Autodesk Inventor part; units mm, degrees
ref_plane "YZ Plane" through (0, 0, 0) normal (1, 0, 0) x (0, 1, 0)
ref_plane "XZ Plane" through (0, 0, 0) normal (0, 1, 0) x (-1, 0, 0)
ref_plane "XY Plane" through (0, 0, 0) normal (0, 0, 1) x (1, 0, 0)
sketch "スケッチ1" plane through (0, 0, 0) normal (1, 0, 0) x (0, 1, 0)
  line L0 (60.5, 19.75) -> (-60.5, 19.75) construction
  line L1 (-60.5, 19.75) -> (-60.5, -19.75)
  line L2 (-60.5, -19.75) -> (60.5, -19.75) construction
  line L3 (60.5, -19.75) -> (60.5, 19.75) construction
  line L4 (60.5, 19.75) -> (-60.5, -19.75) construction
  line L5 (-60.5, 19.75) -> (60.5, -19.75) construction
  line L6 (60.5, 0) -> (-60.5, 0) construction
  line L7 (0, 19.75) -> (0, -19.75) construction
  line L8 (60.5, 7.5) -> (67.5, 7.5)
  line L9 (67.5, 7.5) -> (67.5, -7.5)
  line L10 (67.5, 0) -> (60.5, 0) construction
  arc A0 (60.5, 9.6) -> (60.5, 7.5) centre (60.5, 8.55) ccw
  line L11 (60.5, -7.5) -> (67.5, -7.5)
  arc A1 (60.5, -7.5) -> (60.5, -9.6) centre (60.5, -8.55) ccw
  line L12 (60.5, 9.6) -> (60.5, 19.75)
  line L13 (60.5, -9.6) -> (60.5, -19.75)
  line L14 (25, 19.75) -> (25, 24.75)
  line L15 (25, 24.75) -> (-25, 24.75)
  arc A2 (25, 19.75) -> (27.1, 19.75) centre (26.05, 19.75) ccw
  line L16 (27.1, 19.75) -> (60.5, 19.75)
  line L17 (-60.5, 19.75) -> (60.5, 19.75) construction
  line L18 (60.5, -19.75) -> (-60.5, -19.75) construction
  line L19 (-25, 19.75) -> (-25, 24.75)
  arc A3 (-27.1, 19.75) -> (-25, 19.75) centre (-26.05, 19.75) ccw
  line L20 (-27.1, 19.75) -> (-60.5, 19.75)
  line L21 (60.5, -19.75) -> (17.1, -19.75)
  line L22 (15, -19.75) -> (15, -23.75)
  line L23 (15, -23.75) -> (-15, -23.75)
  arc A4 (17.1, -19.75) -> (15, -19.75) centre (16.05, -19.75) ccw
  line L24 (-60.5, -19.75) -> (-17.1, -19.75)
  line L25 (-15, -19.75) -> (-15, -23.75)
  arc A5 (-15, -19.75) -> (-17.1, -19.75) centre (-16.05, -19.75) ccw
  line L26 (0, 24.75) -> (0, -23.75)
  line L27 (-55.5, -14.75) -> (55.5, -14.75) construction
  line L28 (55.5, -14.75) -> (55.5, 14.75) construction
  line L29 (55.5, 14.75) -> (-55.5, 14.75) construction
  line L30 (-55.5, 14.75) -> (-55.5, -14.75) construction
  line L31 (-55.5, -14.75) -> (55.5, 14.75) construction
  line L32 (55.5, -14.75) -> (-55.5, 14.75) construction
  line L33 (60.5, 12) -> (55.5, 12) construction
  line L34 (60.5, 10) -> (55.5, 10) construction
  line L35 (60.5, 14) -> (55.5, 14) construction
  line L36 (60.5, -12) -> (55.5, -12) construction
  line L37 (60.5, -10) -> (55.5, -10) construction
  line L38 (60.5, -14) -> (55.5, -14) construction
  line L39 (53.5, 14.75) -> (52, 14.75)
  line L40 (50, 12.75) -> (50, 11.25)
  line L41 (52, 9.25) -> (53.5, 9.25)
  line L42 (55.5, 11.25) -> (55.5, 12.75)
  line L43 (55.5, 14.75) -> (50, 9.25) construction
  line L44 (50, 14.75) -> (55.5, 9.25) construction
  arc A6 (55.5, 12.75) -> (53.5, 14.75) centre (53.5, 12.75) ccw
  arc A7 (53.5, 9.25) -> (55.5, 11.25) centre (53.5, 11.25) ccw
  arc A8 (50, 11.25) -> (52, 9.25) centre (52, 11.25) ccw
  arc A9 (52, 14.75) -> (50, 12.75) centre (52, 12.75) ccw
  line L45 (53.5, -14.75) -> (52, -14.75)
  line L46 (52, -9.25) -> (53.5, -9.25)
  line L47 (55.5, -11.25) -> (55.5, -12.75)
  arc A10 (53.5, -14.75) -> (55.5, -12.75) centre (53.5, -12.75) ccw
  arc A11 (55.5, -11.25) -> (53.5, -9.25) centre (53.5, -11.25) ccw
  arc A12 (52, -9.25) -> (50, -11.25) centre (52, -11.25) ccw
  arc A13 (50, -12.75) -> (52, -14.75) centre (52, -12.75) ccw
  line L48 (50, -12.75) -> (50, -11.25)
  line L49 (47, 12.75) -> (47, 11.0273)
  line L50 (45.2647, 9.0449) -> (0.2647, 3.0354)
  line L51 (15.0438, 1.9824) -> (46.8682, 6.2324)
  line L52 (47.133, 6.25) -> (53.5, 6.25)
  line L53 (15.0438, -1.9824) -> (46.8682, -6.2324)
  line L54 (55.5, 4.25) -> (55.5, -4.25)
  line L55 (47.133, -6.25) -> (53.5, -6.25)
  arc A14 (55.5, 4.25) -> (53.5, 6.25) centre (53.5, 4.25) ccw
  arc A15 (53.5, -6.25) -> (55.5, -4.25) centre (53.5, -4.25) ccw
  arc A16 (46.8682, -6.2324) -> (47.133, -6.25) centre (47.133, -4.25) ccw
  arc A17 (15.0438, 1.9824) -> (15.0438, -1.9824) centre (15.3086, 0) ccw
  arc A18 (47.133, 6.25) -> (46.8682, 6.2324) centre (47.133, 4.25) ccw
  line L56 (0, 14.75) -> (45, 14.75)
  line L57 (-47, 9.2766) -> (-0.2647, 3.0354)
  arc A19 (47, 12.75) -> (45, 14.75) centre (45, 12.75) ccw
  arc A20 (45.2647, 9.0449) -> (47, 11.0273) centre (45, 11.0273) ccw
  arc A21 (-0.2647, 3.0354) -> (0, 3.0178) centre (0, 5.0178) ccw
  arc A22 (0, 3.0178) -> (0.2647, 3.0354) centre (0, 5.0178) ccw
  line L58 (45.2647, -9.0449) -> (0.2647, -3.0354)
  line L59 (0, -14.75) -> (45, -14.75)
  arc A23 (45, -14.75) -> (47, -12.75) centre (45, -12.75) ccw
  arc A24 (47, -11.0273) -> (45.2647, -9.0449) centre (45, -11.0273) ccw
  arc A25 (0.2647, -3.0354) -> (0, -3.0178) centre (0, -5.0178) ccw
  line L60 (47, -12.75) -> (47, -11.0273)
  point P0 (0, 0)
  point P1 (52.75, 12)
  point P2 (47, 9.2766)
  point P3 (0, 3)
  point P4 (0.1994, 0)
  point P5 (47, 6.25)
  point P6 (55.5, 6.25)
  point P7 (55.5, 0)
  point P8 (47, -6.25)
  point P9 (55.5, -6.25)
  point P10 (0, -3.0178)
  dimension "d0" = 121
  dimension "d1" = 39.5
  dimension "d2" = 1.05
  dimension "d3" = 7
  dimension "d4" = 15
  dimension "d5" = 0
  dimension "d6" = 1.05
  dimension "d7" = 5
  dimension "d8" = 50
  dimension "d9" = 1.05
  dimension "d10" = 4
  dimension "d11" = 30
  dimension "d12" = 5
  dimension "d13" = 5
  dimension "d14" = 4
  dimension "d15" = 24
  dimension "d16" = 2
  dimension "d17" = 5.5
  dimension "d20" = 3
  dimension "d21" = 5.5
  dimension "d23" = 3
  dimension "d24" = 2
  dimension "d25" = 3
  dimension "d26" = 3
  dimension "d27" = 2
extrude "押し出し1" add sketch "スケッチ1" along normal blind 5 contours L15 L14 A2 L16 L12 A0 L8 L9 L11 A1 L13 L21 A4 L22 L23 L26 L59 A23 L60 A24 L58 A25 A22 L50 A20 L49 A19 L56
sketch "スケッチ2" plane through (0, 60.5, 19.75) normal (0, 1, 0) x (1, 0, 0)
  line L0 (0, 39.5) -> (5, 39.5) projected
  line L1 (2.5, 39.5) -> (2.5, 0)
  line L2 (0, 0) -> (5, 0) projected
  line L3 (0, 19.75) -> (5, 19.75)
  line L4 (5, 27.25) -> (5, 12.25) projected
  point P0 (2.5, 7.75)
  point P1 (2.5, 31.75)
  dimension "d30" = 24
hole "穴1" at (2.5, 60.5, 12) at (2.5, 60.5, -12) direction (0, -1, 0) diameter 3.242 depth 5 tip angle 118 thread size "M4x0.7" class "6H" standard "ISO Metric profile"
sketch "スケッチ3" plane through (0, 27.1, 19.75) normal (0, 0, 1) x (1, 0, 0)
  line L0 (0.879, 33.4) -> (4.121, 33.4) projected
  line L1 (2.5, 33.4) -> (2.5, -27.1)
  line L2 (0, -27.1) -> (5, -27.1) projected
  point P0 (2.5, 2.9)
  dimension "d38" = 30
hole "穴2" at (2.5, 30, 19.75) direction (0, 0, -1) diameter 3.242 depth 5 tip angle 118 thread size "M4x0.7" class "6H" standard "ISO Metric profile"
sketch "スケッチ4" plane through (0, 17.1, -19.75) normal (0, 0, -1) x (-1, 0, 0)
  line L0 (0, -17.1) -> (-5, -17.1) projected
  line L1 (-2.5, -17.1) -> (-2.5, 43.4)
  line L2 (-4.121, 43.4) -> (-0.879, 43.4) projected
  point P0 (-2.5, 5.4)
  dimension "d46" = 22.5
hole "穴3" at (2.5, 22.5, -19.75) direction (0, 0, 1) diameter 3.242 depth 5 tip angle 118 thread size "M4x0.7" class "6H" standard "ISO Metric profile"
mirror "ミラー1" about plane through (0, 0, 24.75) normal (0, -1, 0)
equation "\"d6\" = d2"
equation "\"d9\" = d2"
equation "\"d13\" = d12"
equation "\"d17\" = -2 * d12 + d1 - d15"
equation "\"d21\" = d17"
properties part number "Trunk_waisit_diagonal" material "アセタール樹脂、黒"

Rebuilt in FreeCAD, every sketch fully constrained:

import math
import FreeCAD as App
import Part
import Sketcher
from FreeCAD import Vector
Q = App.Units.Quantity

doc = App.newDocument("Part")
body = doc.addObject("PartDesign::Body", "Body")

# Sketch on YZ plane
sketch1 = doc.addObject("Sketcher::SketchObject", "Sketch")
body.addObject(sketch1)
sketch1.AttachmentSupport = (doc.YZ_Plane, [""])
sketch1.MapMode = "FlatFace"
sketch1.addGeometry([
    Part.LineSegment(Vector(25, 24.75, 0), Vector(0, 24.75, 0)),  # 0
    Part.LineSegment(Vector(0, 24.75, 0), Vector(0, 14.75, 0)),  # 1
    Part.LineSegment(Vector(0, 14.75, 0), Vector(45, 14.75, 0)),  # 2
    Part.ArcOfCircle(Part.Circle(Vector(45, 12.75, 0), Vector(0, 0, 1), 2), math.radians(0), math.radians(90)),  # 3
    Part.LineSegment(Vector(47, 12.75, 0), Vector(47, 11.0273, 0)),  # 4
    Part.ArcOfCircle(Part.Circle(Vector(45, 11.0273, 0), Vector(0, 0, 1), 1.999994), math.radians(-82.394566), math.radians(0)),  # 5
    Part.LineSegment(Vector(45.2647, 9.0449, 0), Vector(0.2647, 3.0354, 0)),  # 6
    Part.ArcOfCircle(Part.Circle(Vector(0.000045, 5.01643, 0), Vector(0, 0, 1), 1.99863), math.radians(-90.001304), math.radians(-82.39066)),  # 7
    Part.LineSegment(Vector(0, 3.0178, 0), Vector(0, -3.0178, 0)),  # 8
    Part.ArcOfCircle(Part.Circle(Vector(-0.000136, -5.019166, 0), Vector(0, 0, 1), 2.001366), math.radians(82.39587), math.radians(89.996094)),  # 9
    Part.LineSegment(Vector(0.2647, -3.0354, 0), Vector(45.2647, -9.0449, 0)),  # 10
    Part.ArcOfCircle(Part.Circle(Vector(45, -11.0273, 0), Vector(0, 0, 1), 2), math.radians(0), math.radians(82.394566)),  # 11
    Part.LineSegment(Vector(47, -11.0273, 0), Vector(47, -12.75, 0)),  # 12
    Part.ArcOfCircle(Part.Circle(Vector(45, -12.75, 0), Vector(0, 0, 1), 2), math.radians(-90), math.radians(0)),  # 13
    Part.LineSegment(Vector(45, -14.75, 0), Vector(0, -14.75, 0)),  # 14
    Part.LineSegment(Vector(0, -14.75, 0), Vector(0, -23.75, 0)),  # 15
    Part.LineSegment(Vector(0, -23.75, 0), Vector(15, -23.75, 0)),  # 16
    Part.LineSegment(Vector(15, -23.75, 0), Vector(15, -19.75, 0)),  # 17
    Part.ArcOfCircle(Part.Circle(Vector(16.05, -19.75, 0), Vector(0, 0, 1), 1.05), math.radians(0), math.radians(180)),  # 18
    Part.LineSegment(Vector(17.1, -19.75, 0), Vector(60.5, -19.75, 0)),  # 19
    Part.LineSegment(Vector(60.5, -19.75, 0), Vector(60.5, -9.6, 0)),  # 20
    Part.ArcOfCircle(Part.Circle(Vector(60.5, -8.55, 0), Vector(0, 0, 1), 1.05), math.radians(90), math.radians(270)),  # 21
    Part.LineSegment(Vector(60.5, -7.5, 0), Vector(67.5, -7.5, 0)),  # 22
    Part.LineSegment(Vector(67.5, -7.5, 0), Vector(67.5, 7.5, 0)),  # 23
    Part.LineSegment(Vector(67.5, 7.5, 0), Vector(60.5, 7.5, 0)),  # 24
    Part.ArcOfCircle(Part.Circle(Vector(60.5, 8.55, 0), Vector(0, 0, 1), 1.05), math.radians(90), math.radians(270)),  # 25
    Part.LineSegment(Vector(60.5, 9.6, 0), Vector(60.5, 19.75, 0)),  # 26
    Part.LineSegment(Vector(60.5, 19.75, 0), Vector(27.1, 19.75, 0)),  # 27
    Part.ArcOfCircle(Part.Circle(Vector(26.05, 19.75, 0), Vector(0, 0, 1), 1.05), math.radians(180), math.radians(360)),  # 28
    Part.LineSegment(Vector(25, 19.75, 0), Vector(25, 24.75, 0)),  # 29
    Part.ArcOfCircle(Part.Circle(Vector(53.5, -12.75, 0), Vector(0, 0, 1), 2), math.radians(-90), math.radians(0)),  # 30
    Part.LineSegment(Vector(53.5, -14.75, 0), Vector(52, -14.75, 0)),  # 31
    Part.ArcOfCircle(Part.Circle(Vector(52, -12.75, 0), Vector(0, 0, 1), 2), math.radians(180), math.radians(270)),  # 32
    Part.LineSegment(Vector(50, -12.75, 0), Vector(50, -11.25, 0)),  # 33
    Part.ArcOfCircle(Part.Circle(Vector(52, -11.25, 0), Vector(0, 0, 1), 2), math.radians(90), math.radians(180)),  # 34
    Part.LineSegment(Vector(52, -9.25, 0), Vector(53.5, -9.25, 0)),  # 35
    Part.ArcOfCircle(Part.Circle(Vector(53.5, -11.25, 0), Vector(0, 0, 1), 2), math.radians(0), math.radians(90)),  # 36
    Part.LineSegment(Vector(55.5, -11.25, 0), Vector(55.5, -12.75, 0)),  # 37
    Part.ArcOfCircle(Part.Circle(Vector(15.3086, 0, 0), Vector(0, 0, 1), 2.000007), math.radians(97.608274), math.radians(262.391726)),  # 38
    Part.LineSegment(Vector(15.0438, 1.9824, 0), Vector(46.8682, 6.2324, 0)),  # 39
    Part.ArcOfCircle(Part.Circle(Vector(47.133054, 4.248365, 0), Vector(0, 0, 1), 2.001635), math.radians(90.001554), math.radians(97.603617)),  # 40
    Part.LineSegment(Vector(47.133, 6.25, 0), Vector(53.5, 6.25, 0)),  # 41
    Part.ArcOfCircle(Part.Circle(Vector(53.5, 4.25, 0), Vector(0, 0, 1), 2), math.radians(0), math.radians(90)),  # 42
    Part.LineSegment(Vector(55.5, 4.25, 0), Vector(55.5, -4.25, 0)),  # 43
    Part.ArcOfCircle(Part.Circle(Vector(53.5, -4.25, 0), Vector(0, 0, 1), 2), math.radians(-90), math.radians(0)),  # 44
    Part.LineSegment(Vector(53.5, -6.25, 0), Vector(47.133, -6.25, 0)),  # 45
    Part.ArcOfCircle(Part.Circle(Vector(47.132838, -4.251625, 0), Vector(0, 0, 1), 1.998375), math.radians(-97.609828), math.radians(-89.995343)),  # 46
    Part.LineSegment(Vector(46.8682, -6.2324, 0), Vector(15.0438, -1.9824, 0)),  # 47
    Part.LineSegment(Vector(52, 14.75, 0), Vector(53.5, 14.75, 0)),  # 48
    Part.ArcOfCircle(Part.Circle(Vector(53.5, 12.75, 0), Vector(0, 0, 1), 2), math.radians(0), math.radians(90)),  # 49
    Part.LineSegment(Vector(55.5, 12.75, 0), Vector(55.5, 11.25, 0)),  # 50
    Part.ArcOfCircle(Part.Circle(Vector(53.5, 11.25, 0), Vector(0, 0, 1), 2), math.radians(-90), math.radians(0)),  # 51
    Part.LineSegment(Vector(53.5, 9.25, 0), Vector(52, 9.25, 0)),  # 52
    Part.ArcOfCircle(Part.Circle(Vector(52, 11.25, 0), Vector(0, 0, 1), 2), math.radians(180), math.radians(270)),  # 53
    Part.LineSegment(Vector(50, 11.25, 0), Vector(50, 12.75, 0)),  # 54
    Part.ArcOfCircle(Part.Circle(Vector(52, 12.75, 0), Vector(0, 0, 1), 2), math.radians(90), math.radians(180)),  # 55
], False)
sketch1.addConstraint([
    Sketcher.Constraint("Coincident", 0, 2, 1, 1),
    Sketcher.Constraint("Coincident", 1, 2, 2, 1),
    Sketcher.Constraint("Coincident", 2, 2, 3, 2),
    Sketcher.Constraint("Coincident", 3, 1, 4, 1),
    Sketcher.Constraint("Coincident", 4, 2, 5, 2),
    Sketcher.Constraint("Coincident", 5, 1, 6, 1),
    Sketcher.Constraint("Coincident", 6, 2, 7, 2),
    Sketcher.Constraint("Coincident", 7, 1, 8, 1),
    Sketcher.Constraint("Coincident", 8, 2, 9, 2),
    Sketcher.Constraint("Coincident", 9, 1, 10, 1),
    Sketcher.Constraint("Coincident", 10, 2, 11, 2),
    Sketcher.Constraint("Coincident", 11, 1, 12, 1),
    Sketcher.Constraint("Coincident", 12, 2, 13, 2),
    Sketcher.Constraint("Coincident", 13, 1, 14, 1),
    Sketcher.Constraint("Coincident", 14, 2, 15, 1),
    Sketcher.Constraint("Coincident", 15, 2, 16, 1),
    Sketcher.Constraint("Coincident", 16, 2, 17, 1),
    Sketcher.Constraint("Coincident", 17, 2, 18, 2),
    Sketcher.Constraint("Coincident", 18, 1, 19, 1),
    Sketcher.Constraint("Coincident", 19, 2, 20, 1),
    Sketcher.Constraint("Coincident", 20, 2, 21, 2),
    Sketcher.Constraint("Coincident", 21, 1, 22, 1),
    Sketcher.Constraint("Coincident", 22, 2, 23, 1),
    Sketcher.Constraint("Coincident", 23, 2, 24, 1),
    Sketcher.Constraint("Coincident", 24, 2, 25, 2),
    Sketcher.Constraint("Coincident", 25, 1, 26, 1),
    Sketcher.Constraint("Coincident", 26, 2, 27, 1),
    Sketcher.Constraint("Coincident", 27, 2, 28, 2),
    Sketcher.Constraint("Coincident", 28, 1, 29, 1),
    Sketcher.Constraint("Coincident", 29, 2, 0, 1),
    Sketcher.Constraint("Coincident", 30, 1, 31, 1),
    Sketcher.Constraint("Coincident", 31, 2, 32, 2),
    Sketcher.Constraint("Coincident", 32, 1, 33, 1),
    Sketcher.Constraint("Coincident", 33, 2, 34, 2),
    Sketcher.Constraint("Coincident", 34, 1, 35, 1),
    Sketcher.Constraint("Coincident", 35, 2, 36, 2),
    Sketcher.Constraint("Coincident", 36, 1, 37, 1),
    Sketcher.Constraint("Coincident", 37, 2, 30, 2),
    Sketcher.Constraint("Coincident", 38, 1, 39, 1),
    Sketcher.Constraint("Coincident", 39, 2, 40, 2),
    Sketcher.Constraint("Coincident", 40, 1, 41, 1),
    Sketcher.Constraint("Coincident", 41, 2, 42, 2),
    Sketcher.Constraint("Coincident", 42, 1, 43, 1),
    Sketcher.Constraint("Coincident", 43, 2, 44, 2),
    Sketcher.Constraint("Coincident", 44, 1, 45, 1),
    Sketcher.Constraint("Coincident", 45, 2, 46, 2),
    Sketcher.Constraint("Coincident", 46, 1, 47, 1),
    Sketcher.Constraint("Coincident", 47, 2, 38, 2),
    Sketcher.Constraint("Coincident", 48, 2, 49, 2),
    Sketcher.Constraint("Coincident", 49, 1, 50, 1),
    Sketcher.Constraint("Coincident", 50, 2, 51, 2),
    Sketcher.Constraint("Coincident", 51, 1, 52, 1),
    Sketcher.Constraint("Coincident", 52, 2, 53, 2),
    Sketcher.Constraint("Coincident", 53, 1, 54, 1),
    Sketcher.Constraint("Coincident", 54, 2, 55, 2),
    Sketcher.Constraint("Coincident", 55, 1, 48, 1),
    Sketcher.Constraint("Horizontal", 0),
    Sketcher.Constraint("Vertical", 1),
    Sketcher.Constraint("Horizontal", 2),
    Sketcher.Constraint("Vertical", 4),
    Sketcher.Constraint("Vertical", 8),
    Sketcher.Constraint("Vertical", 12),
    Sketcher.Constraint("Horizontal", 14),
    Sketcher.Constraint("Vertical", 15),
    Sketcher.Constraint("Horizontal", 16),
    Sketcher.Constraint("Vertical", 17),
    Sketcher.Constraint("Horizontal", 19),
    Sketcher.Constraint("Vertical", 20),
    Sketcher.Constraint("Horizontal", 22),
    Sketcher.Constraint("Vertical", 23),
    Sketcher.Constraint("Horizontal", 24),
    Sketcher.Constraint("Vertical", 26),
    Sketcher.Constraint("Horizontal", 27),
    Sketcher.Constraint("Vertical", 29),
    Sketcher.Constraint("Horizontal", 31),
    Sketcher.Constraint("Vertical", 33),
    Sketcher.Constraint("Horizontal", 35),
    Sketcher.Constraint("Vertical", 37),
    Sketcher.Constraint("Horizontal", 41),
    Sketcher.Constraint("Vertical", 43),
    Sketcher.Constraint("Horizontal", 45),
    Sketcher.Constraint("Horizontal", 48),
    Sketcher.Constraint("Vertical", 50),
    Sketcher.Constraint("Horizontal", 52),
    Sketcher.Constraint("Vertical", 54),
    Sketcher.Constraint("PointOnObject", 7, 3, -2),
    Sketcher.Constraint("PointOnObject", 9, 3, -2),
    Sketcher.Constraint("PointOnObject", 38, 3, -1),
    Sketcher.Constraint("PointOnObject", 0, 2, -2),
    Sketcher.Constraint("PointOnObject", 7, 1, -2),
    Sketcher.Constraint("PointOnObject", 14, 2, -2),
    Sketcher.Constraint("Radius", 3, Q("2 mm")),
    Sketcher.Constraint("Radius", 5, Q("2 mm")),
    Sketcher.Constraint("Radius", 11, Q("2 mm")),
    Sketcher.Constraint("Radius", 13, Q("2 mm")),
    Sketcher.Constraint("Radius", 30, Q("2 mm")),
    Sketcher.Constraint("Radius", 32, Q("2 mm")),
    Sketcher.Constraint("Radius", 34, Q("2 mm")),
    Sketcher.Constraint("Radius", 36, Q("2 mm")),
    Sketcher.Constraint("Radius", 38, Q("2 mm")),
    Sketcher.Constraint("Radius", 42, Q("2 mm")),
    Sketcher.Constraint("Radius", 44, Q("2 mm")),
    Sketcher.Constraint("Radius", 49, Q("2 mm")),
    Sketcher.Constraint("Radius", 51, Q("2 mm")),
    Sketcher.Constraint("Radius", 53, Q("2 mm")),
    Sketcher.Constraint("Radius", 55, Q("2 mm")),
    Sketcher.Constraint("DistanceX", 16, 1, 16, 2, Q("15 mm")),
    Sketcher.Constraint("DistanceX", 22, 1, 22, 2, Q("7 mm")),
    Sketcher.Constraint("DistanceX", 24, 2, 24, 1, Q("7 mm")),
    Sketcher.Constraint("DistanceY", 17, 1, 17, 2, Q("4 mm")),
    Sketcher.Constraint("DistanceY", 23, 1, 23, 2, Q("15 mm")),
    Sketcher.Constraint("DistanceY", 29, 1, 29, 2, Q("5 mm")),
    Sketcher.Constraint("Radius", 18, Q("1.05 mm")),
    Sketcher.Constraint("Radius", 21, Q("1.05 mm")),
    Sketcher.Constraint("Radius", 25, Q("1.05 mm")),
    Sketcher.Constraint("Radius", 28, Q("1.05 mm")),
    Sketcher.Constraint("DistanceX", -1, 1, 32, 1, Q("50 mm")),
    Sketcher.Constraint("DistanceX", -1, 1, 53, 1, Q("50 mm")),
    Sketcher.Constraint("DistanceX", 0, 2, 0, 1, Q("25 mm")),
    Sketcher.Constraint("DistanceX", 2, 1, 2, 2, Q("45 mm")),
    Sketcher.Constraint("DistanceX", 14, 2, 14, 1, Q("45 mm")),
    Sketcher.Constraint("DistanceY", 1, 2, 1, 1, Q("10 mm")),
    Sketcher.Constraint("DistanceY", 15, 2, 15, 1, Q("9 mm")),
    Sketcher.Constraint("DistanceX", 19, 1, 19, 2, Q("43.4 mm")),
    Sketcher.Constraint("DistanceX", 27, 2, 27, 1, Q("33.4 mm")),
    Sketcher.Constraint("DistanceX", 31, 2, 31, 1, Q("1.5 mm")),
    Sketcher.Constraint("DistanceX", 35, 1, 35, 2, Q("1.5 mm")),
    Sketcher.Constraint("DistanceX", 48, 1, 48, 2, Q("1.5 mm")),
    Sketcher.Constraint("DistanceX", 52, 2, 52, 1, Q("1.5 mm")),
    Sketcher.Constraint("DistanceY", 33, 1, 33, 2, Q("1.5 mm")),
    Sketcher.Constraint("DistanceY", 37, 2, 37, 1, Q("1.5 mm")),
    Sketcher.Constraint("DistanceY", 43, 2, 43, 1, Q("8.5 mm")),
    Sketcher.Constraint("DistanceY", 50, 2, 50, 1, Q("1.5 mm")),
    Sketcher.Constraint("DistanceY", 54, 1, 54, 2, Q("1.5 mm")),
    Sketcher.Constraint("DistanceX", -1, 1, 3, 3, Q("45 mm")),
    Sketcher.Constraint("DistanceX", -1, 1, 11, 3, Q("45 mm")),
    Sketcher.Constraint("DistanceX", -1, 1, 31, 2, Q("52 mm")),
    Sketcher.Constraint("DistanceX", -1, 1, 34, 1, Q("52 mm")),
    Sketcher.Constraint("DistanceX", -1, 1, 52, 2, Q("52 mm")),
    Sketcher.Constraint("DistanceX", -1, 1, 55, 1, Q("52 mm")),
    Sketcher.Constraint("DistanceY", 20, 1, 20, 2, Q("10.15 mm")),
    Sketcher.Constraint("DistanceY", 26, 1, 26, 2, Q("10.15 mm")),
    Sketcher.Constraint("DistanceX", -1, 1, 21, 3, Q("60.5 mm")),
    Sketcher.Constraint("DistanceX", -1, 1, 25, 3, Q("60.5 mm")),
    Sketcher.Constraint("DistanceX", -1, 1, 30, 3, Q("53.5 mm")),
    Sketcher.Constraint("DistanceX", -1, 1, 42, 3, Q("53.5 mm")),
    Sketcher.Constraint("DistanceX", -1, 1, 49, 3, Q("53.5 mm")),
    Sketcher.Constraint("DistanceY", 20, 2, -1, 1, Q("9.6 mm")),
    Sketcher.Constraint("DistanceX", -1, 1, 21, 1, Q("60.5 mm")),
    Sketcher.Constraint("DistanceX", -1, 1, 41, 2, Q("53.5 mm")),
    Sketcher.Constraint("DistanceX", -1, 1, 44, 1, Q("53.5 mm")),
    Sketcher.Constraint("Radius", 7, Q("1.9986 mm")),
    Sketcher.Constraint("Radius", 9, Q("2.0014 mm")),
    Sketcher.Constraint("Radius", 40, Q("2.0016 mm")),
    Sketcher.Constraint("Radius", 46, Q("1.9984 mm")),
    Sketcher.Constraint("DistanceX", 41, 1, 41, 2, Q("6.367 mm")),
    Sketcher.Constraint("DistanceX", 45, 2, 45, 1, Q("6.367 mm")),
    Sketcher.Constraint("DistanceY", -1, 1, 3, 3, Q("12.75 mm")),
    Sketcher.Constraint("DistanceY", 13, 3, -1, 1, Q("12.75 mm")),
    Sketcher.Constraint("DistanceY", 18, 3, -1, 1, Q("19.75 mm")),
    Sketcher.Constraint("DistanceY", -1, 1, 28, 3, Q("19.75 mm")),
    Sketcher.Constraint("DistanceY", 30, 3, -1, 1, Q("12.75 mm")),
    Sketcher.Constraint("DistanceY", 34, 3, -1, 1, Q("11.25 mm")),
    Sketcher.Constraint("DistanceY", -1, 1, 42, 3, Q("4.25 mm")),
    Sketcher.Constraint("DistanceY", 44, 3, -1, 1, Q("4.25 mm")),
    Sketcher.Constraint("DistanceY", -1, 1, 49, 3, Q("12.75 mm")),
    Sketcher.Constraint("DistanceY", -1, 1, 51, 3, Q("11.25 mm")),
    Sketcher.Constraint("DistanceY", -1, 1, 3, 1, Q("12.75 mm")),
    Sketcher.Constraint("DistanceY", 12, 2, -1, 1, Q("12.75 mm")),
    Sketcher.Constraint("DistanceY", 32, 1, -1, 1, Q("12.75 mm")),
    Sketcher.Constraint("DistanceY", 36, 1, -1, 1, Q("11.25 mm")),
    Sketcher.Constraint("DistanceY", -1, 1, 42, 1, Q("4.25 mm")),
    Sketcher.Constraint("DistanceY", -1, 1, 49, 1, Q("12.75 mm")),
    Sketcher.Constraint("DistanceY", -1, 1, 53, 1, Q("11.25 mm")),
    Sketcher.Constraint("Distance", 39, Q("32.107 mm")),
    Sketcher.Constraint("Distance", 47, Q("32.107 mm")),
    Sketcher.Constraint("DistanceY", 4, 2, 4, 1, Q("1.7227 mm")),
    Sketcher.Constraint("DistanceY", 8, 2, 8, 1, Q("6.0356 mm")),
    Sketcher.Constraint("DistanceY", 12, 2, 12, 1, Q("1.7227 mm")),
    Sketcher.Constraint("DistanceX", -1, 1, 40, 3, Q("47.133 mm")),
    Sketcher.Constraint("DistanceY", -1, 1, 5, 1, Q("9.045 mm")),
    Sketcher.Constraint("DistanceY", 10, 2, -1, 1, Q("9.045 mm")),
    Sketcher.Constraint("Distance", 6, Q("45.3995 mm")),
    Sketcher.Constraint("Distance", 10, Q("45.3995 mm")),
    Sketcher.Constraint("DistanceY", -1, 1, 5, 3, Q("11.0273 mm")),
    Sketcher.Constraint("DistanceY", -1, 1, 7, 3, Q("5.0164 mm")),
    Sketcher.Constraint("DistanceY", 11, 3, -1, 1, Q("11.0273 mm")),
    Sketcher.Constraint("DistanceX", -1, 1, 38, 3, Q("15.3086 mm")),
    Sketcher.Constraint("DistanceX", -1, 1, 46, 3, Q("47.1328 mm")),
    Sketcher.Constraint("DistanceX", -1, 1, 38, 1, Q("15.0438 mm")),
    Sketcher.Constraint("DistanceX", -1, 1, 46, 1, Q("46.8682 mm")),
])
pad1 = doc.addObject("PartDesign::Pad", "Pad")
body.addObject(pad1)
pad1.Profile = sketch1
pad1.Length = 5

# Sketch on XZ plane
sketch2 = doc.addObject("Sketcher::SketchObject", "Sketch001")
body.addObject(sketch2)
sketch2.AttachmentSupport = (doc.XZ_Plane, [""])
sketch2.MapMode = "FlatFace"
sketch2.AttachmentOffset = App.Placement(Vector(0, 0, -60.5), App.Rotation())
sketch2.addGeometry([
    Part.Circle(Vector(2.5, 12, 0), Vector(0, 0, 1), 1.6),
    Part.Circle(Vector(2.5, -12, 0), Vector(0, 0, 1), 1.6),
], False)
sketch2.addConstraint([
    Sketcher.Constraint("Equal", 0, 1),
    Sketcher.Constraint("Symmetric", 0, 3, 1, 3, -1),
    Sketcher.Constraint("Diameter", 0, Q("3.242 mm")),
    Sketcher.Constraint("DistanceY", -1, 1, 0, 3, Q("12 mm")),
    Sketcher.Constraint("DistanceX", -1, 1, 0, 3, Q("2.5 mm")),
])
doc.recompute()
hole = doc.addObject("PartDesign::Hole", "Hole")
body.addObject(hole)
hole.Profile = sketch2
hole.ThreadType = "None"
hole.Diameter = 3.242
hole.DepthType = "Dimension"
hole.Depth = 5
hole.DrillPoint = "Angled"
hole.DrillPointAngle = 118
hole.Reversed = True

# Sketch on XY plane
sketch3 = doc.addObject("Sketcher::SketchObject", "Sketch002")
body.addObject(sketch3)
sketch3.AttachmentSupport = (doc.XY_Plane, [""])
sketch3.MapMode = "FlatFace"
sketch3.AttachmentOffset = App.Placement(Vector(0, 0, 19.75), App.Rotation())
sketch3.addGeometry(Part.Circle(Vector(2.5, 30, 0), Vector(0, 0, 1), 1.6), False)
sketch3.addConstraint([
    Sketcher.Constraint("Diameter", 0, Q("3.242 mm")),
    Sketcher.Constraint("DistanceY", -1, 1, 0, 3, Q("30 mm")),
    Sketcher.Constraint("DistanceX", -1, 1, 0, 3, Q("2.5 mm")),
])
doc.recompute()
hole2 = doc.addObject("PartDesign::Hole", "Hole001")
body.addObject(hole2)
hole2.Profile = sketch3
hole2.ThreadType = "None"
hole2.Diameter = 3.242
hole2.DepthType = "Dimension"
hole2.Depth = 5
hole2.DrillPoint = "Angled"
hole2.DrillPointAngle = 118

# Sketch on XY plane
sketch4 = doc.addObject("Sketcher::SketchObject", "Sketch003")
body.addObject(sketch4)
sketch4.AttachmentSupport = (doc.XY_Plane, [""])
sketch4.MapMode = "FlatFace"
sketch4.AttachmentOffset = App.Placement(Vector(0, 0, -19.75), App.Rotation())
sketch4.addGeometry(Part.Circle(Vector(2.5, 22.5, 0), Vector(0, 0, 1), 1.6), False)
sketch4.addConstraint([
    Sketcher.Constraint("Diameter", 0, Q("3.242 mm")),
    Sketcher.Constraint("DistanceX", -1, 1, 0, 3, Q("2.5 mm")),
    Sketcher.Constraint("DistanceY", -1, 1, 0, 3, Q("22.5 mm")),
])
doc.recompute()
hole3 = doc.addObject("PartDesign::Hole", "Hole002")
body.addObject(hole3)
hole3.Profile = sketch4
hole3.ThreadType = "None"
hole3.Diameter = 3.242
hole3.DepthType = "Dimension"
hole3.Depth = 5
hole3.DrillPoint = "Angled"
hole3.DrillPointAngle = 118
hole3.Reversed = True
doc.recompute()

mirrored = doc.addObject("PartDesign::Mirrored", "Mirrored")
body.addObject(mirrored)
mirrored.TransformMode = "Transform body"
mirrored.MirrorPlane = (doc.XZ_Plane, [""])
body.Tip = mirrored

doc.recompute()
